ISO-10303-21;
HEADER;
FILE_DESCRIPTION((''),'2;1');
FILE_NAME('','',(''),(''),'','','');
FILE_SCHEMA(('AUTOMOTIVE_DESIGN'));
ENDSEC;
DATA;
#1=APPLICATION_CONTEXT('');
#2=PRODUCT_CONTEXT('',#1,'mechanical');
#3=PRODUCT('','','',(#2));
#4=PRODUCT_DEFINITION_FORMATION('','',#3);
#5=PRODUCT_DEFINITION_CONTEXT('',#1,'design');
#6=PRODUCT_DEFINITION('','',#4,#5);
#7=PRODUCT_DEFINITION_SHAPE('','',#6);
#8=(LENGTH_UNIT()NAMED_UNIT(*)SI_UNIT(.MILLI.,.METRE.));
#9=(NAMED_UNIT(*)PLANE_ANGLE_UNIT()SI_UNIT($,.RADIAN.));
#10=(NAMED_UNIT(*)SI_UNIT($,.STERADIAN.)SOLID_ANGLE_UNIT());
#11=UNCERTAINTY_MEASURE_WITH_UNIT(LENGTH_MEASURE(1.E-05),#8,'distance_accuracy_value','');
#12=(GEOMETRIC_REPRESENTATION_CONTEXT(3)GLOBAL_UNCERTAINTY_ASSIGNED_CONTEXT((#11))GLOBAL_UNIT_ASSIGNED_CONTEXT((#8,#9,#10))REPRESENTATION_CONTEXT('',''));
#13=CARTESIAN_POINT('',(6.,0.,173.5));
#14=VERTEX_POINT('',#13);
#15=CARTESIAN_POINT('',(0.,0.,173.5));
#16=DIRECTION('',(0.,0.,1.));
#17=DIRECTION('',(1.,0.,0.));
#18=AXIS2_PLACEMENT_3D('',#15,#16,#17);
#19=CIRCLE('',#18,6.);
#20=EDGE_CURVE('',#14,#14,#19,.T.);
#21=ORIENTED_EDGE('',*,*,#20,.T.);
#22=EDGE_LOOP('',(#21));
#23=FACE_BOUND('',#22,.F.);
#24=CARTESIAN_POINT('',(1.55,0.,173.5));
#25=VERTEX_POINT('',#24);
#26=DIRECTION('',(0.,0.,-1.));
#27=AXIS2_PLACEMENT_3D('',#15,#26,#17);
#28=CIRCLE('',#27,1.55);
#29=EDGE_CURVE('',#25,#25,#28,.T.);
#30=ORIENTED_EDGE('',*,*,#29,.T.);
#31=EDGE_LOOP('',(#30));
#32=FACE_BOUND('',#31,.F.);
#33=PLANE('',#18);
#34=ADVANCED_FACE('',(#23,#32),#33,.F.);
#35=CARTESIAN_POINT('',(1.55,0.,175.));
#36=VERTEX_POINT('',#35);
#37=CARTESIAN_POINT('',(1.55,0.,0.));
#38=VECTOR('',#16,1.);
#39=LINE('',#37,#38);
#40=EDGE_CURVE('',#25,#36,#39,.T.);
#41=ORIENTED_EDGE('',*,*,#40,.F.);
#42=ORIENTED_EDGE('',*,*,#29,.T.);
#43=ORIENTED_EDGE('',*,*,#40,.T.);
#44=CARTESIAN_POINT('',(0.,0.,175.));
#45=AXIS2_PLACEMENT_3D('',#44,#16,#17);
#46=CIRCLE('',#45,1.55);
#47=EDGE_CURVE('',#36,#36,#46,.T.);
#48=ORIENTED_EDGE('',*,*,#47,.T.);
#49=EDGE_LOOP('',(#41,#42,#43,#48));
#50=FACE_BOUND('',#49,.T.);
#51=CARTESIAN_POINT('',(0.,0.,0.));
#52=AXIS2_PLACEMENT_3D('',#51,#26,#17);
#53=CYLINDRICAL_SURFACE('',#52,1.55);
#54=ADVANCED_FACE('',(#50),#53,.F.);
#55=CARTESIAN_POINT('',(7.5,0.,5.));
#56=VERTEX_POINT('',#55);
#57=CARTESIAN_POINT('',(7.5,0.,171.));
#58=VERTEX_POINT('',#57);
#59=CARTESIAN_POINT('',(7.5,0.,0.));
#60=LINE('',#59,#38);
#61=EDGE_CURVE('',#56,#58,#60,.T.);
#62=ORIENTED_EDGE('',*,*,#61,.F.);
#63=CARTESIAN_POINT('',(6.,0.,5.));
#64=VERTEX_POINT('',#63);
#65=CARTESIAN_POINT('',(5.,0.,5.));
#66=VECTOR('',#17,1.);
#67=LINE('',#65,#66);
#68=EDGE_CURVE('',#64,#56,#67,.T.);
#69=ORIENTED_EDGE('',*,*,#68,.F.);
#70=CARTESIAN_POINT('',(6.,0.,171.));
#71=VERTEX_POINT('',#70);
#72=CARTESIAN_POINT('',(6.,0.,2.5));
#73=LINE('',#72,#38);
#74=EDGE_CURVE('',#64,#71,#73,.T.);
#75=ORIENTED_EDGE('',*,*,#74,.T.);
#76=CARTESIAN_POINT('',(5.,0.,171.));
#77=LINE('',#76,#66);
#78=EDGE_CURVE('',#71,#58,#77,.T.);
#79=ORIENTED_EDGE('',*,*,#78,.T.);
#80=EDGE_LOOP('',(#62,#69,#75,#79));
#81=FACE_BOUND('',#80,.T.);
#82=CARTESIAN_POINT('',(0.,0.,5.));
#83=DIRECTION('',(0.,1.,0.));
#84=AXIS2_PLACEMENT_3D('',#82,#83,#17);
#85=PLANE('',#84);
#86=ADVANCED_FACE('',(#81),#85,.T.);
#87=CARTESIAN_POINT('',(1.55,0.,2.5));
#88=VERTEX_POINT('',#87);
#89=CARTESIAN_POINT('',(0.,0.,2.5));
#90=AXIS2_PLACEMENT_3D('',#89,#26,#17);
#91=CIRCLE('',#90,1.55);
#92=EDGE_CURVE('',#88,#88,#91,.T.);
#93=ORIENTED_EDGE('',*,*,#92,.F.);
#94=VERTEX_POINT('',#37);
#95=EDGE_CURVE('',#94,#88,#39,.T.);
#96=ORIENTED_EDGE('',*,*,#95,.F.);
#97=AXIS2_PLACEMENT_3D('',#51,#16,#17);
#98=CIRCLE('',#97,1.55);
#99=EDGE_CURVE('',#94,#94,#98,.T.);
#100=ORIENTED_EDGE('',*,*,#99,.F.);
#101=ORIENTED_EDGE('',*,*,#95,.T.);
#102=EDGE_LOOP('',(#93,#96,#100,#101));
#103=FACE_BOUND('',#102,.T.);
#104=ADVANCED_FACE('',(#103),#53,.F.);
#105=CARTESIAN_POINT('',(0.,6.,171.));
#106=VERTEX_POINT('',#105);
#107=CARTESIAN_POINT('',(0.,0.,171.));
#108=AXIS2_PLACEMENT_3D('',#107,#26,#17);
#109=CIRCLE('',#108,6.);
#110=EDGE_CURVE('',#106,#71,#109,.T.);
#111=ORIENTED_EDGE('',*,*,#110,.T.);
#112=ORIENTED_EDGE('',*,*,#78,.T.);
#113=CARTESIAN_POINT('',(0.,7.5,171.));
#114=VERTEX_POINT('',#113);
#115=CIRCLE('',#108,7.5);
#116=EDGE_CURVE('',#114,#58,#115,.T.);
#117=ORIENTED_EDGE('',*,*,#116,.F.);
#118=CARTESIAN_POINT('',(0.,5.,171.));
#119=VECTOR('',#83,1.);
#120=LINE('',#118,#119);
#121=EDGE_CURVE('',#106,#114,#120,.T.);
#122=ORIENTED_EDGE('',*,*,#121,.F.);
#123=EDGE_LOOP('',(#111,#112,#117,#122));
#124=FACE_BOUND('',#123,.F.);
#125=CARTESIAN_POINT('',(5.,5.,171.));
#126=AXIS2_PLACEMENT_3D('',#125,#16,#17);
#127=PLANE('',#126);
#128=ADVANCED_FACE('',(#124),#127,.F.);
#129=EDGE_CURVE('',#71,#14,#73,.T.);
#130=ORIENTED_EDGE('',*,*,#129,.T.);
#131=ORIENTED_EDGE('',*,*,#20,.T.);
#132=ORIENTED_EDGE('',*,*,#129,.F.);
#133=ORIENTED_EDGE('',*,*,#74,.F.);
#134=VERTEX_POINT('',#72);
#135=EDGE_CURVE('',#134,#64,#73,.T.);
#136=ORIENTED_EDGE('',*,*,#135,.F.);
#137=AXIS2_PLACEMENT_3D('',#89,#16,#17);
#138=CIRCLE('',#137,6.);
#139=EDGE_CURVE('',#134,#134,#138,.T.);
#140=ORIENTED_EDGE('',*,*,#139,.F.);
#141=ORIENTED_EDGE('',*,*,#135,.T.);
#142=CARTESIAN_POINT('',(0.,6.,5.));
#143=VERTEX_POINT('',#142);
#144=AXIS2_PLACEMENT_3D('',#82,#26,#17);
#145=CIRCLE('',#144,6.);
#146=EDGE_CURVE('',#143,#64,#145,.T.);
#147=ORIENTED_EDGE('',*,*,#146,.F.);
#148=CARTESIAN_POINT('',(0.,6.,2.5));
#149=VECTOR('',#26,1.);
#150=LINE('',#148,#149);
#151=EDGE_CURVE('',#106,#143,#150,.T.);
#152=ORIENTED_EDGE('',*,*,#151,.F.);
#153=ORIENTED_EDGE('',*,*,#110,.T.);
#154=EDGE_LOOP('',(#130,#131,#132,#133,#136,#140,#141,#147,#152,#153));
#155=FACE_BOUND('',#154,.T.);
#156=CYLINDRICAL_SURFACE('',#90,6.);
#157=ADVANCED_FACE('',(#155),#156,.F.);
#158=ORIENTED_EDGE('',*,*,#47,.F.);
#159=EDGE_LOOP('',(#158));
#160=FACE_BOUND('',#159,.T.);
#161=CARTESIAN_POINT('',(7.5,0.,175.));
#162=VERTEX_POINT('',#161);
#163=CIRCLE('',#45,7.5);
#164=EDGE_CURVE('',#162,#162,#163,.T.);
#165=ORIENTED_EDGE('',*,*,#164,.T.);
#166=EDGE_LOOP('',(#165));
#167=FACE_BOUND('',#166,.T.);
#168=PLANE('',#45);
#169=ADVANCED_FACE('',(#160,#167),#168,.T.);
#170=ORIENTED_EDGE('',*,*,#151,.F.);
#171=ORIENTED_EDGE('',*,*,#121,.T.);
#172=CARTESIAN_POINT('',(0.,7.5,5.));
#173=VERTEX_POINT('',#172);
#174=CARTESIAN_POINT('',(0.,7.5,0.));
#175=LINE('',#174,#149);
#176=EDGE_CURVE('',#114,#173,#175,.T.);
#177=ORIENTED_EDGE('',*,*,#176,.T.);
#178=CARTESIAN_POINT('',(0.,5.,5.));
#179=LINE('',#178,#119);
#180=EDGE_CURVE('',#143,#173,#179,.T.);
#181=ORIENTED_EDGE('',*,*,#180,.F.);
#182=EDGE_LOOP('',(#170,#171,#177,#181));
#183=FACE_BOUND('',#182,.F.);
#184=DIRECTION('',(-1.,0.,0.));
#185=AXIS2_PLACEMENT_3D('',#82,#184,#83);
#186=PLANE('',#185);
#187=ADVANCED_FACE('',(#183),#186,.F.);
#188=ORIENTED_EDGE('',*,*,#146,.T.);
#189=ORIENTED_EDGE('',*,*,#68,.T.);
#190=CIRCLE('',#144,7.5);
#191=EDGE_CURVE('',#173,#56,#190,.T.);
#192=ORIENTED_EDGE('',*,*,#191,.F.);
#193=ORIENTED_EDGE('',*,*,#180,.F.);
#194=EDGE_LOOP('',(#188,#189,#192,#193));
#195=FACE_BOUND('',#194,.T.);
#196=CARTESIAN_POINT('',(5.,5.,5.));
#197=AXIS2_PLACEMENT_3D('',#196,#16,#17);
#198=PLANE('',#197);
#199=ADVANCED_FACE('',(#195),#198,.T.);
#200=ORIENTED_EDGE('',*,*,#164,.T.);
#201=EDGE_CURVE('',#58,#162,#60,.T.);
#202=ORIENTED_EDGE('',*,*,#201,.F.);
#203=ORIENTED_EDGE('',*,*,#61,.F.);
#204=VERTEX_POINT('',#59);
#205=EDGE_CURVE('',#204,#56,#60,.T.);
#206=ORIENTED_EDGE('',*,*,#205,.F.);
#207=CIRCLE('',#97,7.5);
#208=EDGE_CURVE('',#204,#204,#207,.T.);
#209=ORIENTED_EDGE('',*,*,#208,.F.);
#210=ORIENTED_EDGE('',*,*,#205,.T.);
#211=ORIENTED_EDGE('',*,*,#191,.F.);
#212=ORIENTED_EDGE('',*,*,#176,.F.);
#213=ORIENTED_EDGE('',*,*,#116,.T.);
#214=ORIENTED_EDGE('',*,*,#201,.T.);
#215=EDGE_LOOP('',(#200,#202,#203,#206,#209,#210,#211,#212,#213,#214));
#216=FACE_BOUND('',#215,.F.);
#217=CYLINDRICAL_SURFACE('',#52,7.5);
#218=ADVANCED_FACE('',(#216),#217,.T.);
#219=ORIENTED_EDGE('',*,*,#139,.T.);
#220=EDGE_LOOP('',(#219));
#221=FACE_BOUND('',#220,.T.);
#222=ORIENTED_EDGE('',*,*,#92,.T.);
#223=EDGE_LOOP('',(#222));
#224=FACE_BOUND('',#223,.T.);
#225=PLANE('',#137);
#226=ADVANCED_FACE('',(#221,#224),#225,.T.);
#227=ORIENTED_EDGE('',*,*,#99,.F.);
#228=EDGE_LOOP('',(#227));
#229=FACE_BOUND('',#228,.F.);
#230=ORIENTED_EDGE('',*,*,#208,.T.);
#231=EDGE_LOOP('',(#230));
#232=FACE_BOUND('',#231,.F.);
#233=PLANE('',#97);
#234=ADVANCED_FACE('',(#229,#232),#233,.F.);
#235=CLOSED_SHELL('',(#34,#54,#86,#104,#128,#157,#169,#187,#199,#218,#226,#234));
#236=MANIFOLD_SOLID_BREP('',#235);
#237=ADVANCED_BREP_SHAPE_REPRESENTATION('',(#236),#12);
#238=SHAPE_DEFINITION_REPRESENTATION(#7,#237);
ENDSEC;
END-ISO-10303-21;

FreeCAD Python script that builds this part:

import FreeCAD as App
import Part
import Sketcher

V = App.Vector

doc = App.newDocument("Part")
body = doc.addObject("PartDesign::Body", "Body")

# Sketch on XY plane
sketch1 = doc.addObject("Sketcher::SketchObject", "Sketch")
body.addObject(sketch1)
sketch1.AttachmentSupport = (doc.XY_Plane, [""])
sketch1.MapMode = "FlatFace"
sketch1.addGeometry(Part.Circle(V(0, 0, 0), V(0, 0, 1), 8), False)
sketch1.addConstraint(Sketcher.Constraint("Coincident", 0, 3, -1, 1))
sketch1.addConstraint(Sketcher.Constraint("Diameter", 0, 15.0))
pad1 = doc.addObject("PartDesign::Pad", "Pad")
body.addObject(pad1)
pad1.Profile = sketch1
pad1.Length = 175

# Sketch on XY plane
sketch2 = doc.addObject("Sketcher::SketchObject", "Sketch001")
body.addObject(sketch2)
sketch2.AttachmentSupport = (doc.XY_Plane, [""])
sketch2.MapMode = "FlatFace"
sketch2.AttachmentOffset = App.Placement(V(0, 0, 5), App.Rotation())
sketch2.addGeometry(Part.LineSegment(V(0, 10, 0), V(0, 0, 0)), False)
sketch2.addGeometry(Part.LineSegment(V(0, 0, 0), V(10, 0, 0)), False)
sketch2.addGeometry(Part.LineSegment(V(10, 0, 0), V(10, 10, 0)), False)
sketch2.addGeometry(Part.LineSegment(V(10, 10, 0), V(0, 10, 0)), False)
sketch2.addConstraint(Sketcher.Constraint("Coincident", 0, 2, 1, 1))
sketch2.addConstraint(Sketcher.Constraint("Coincident", 1, 2, 2, 1))
sketch2.addConstraint(Sketcher.Constraint("Coincident", 2, 2, 3, 1))
sketch2.addConstraint(Sketcher.Constraint("Coincident", 3, 2, 0, 1))
sketch2.addConstraint(Sketcher.Constraint("Vertical", 0))
sketch2.addConstraint(Sketcher.Constraint("Horizontal", 1))
sketch2.addConstraint(Sketcher.Constraint("Vertical", 2))
sketch2.addConstraint(Sketcher.Constraint("Horizontal", 3))
sketch2.addConstraint(Sketcher.Constraint("Coincident", 0, 2, -1, 1))
sketch2.addConstraint(Sketcher.Constraint("Equal", 3, 0))
sketch2.addConstraint(Sketcher.Constraint("DistanceX", 1, 1, 1, 2, 10.0))
pocket1 = doc.addObject("PartDesign::Pocket", "Pocket")
body.addObject(pocket1)
pocket1.Profile = sketch2
pocket1.Length = 166
pocket1.Reversed = True

# Sketch on XY plane
sketch3 = doc.addObject("Sketcher::SketchObject", "Sketch002")
body.addObject(sketch3)
sketch3.AttachmentSupport = (doc.XY_Plane, [""])
sketch3.MapMode = "FlatFace"
sketch3.AttachmentOffset = App.Placement(V(0, 0, 2.5), App.Rotation())
sketch3.addGeometry(Part.Circle(V(0, 0, 0), V(0, 0, 1), 6), False)
sketch3.addConstraint(Sketcher.Constraint("Coincident", 0, 3, -1, 1))
sketch3.addConstraint(Sketcher.Constraint("Diameter", 0, 12.0))
pocket2 = doc.addObject("PartDesign::Pocket", "Pocket001")
body.addObject(pocket2)
pocket2.Profile = sketch3
pocket2.Length = 171
pocket2.Reversed = True

# Sketch on XY plane
sketch4 = doc.addObject("Sketcher::SketchObject", "Sketch003")
body.addObject(sketch4)
sketch4.AttachmentSupport = (doc.XY_Plane, [""])
sketch4.MapMode = "FlatFace"
sketch4.addGeometry(Part.Circle(V(0, 0, 0), V(0, 0, 1), 1.6), False)
sketch4.addConstraint(Sketcher.Constraint("Coincident", 0, 3, -1, 1))
sketch4.addConstraint(Sketcher.Constraint("Diameter", 0, 3.1))
pocket3 = doc.addObject("PartDesign::Pocket", "Pocket002")
body.addObject(pocket3)
pocket3.Profile = sketch4
pocket3.Length = 175
pocket3.Reversed = True

doc.recompute()
